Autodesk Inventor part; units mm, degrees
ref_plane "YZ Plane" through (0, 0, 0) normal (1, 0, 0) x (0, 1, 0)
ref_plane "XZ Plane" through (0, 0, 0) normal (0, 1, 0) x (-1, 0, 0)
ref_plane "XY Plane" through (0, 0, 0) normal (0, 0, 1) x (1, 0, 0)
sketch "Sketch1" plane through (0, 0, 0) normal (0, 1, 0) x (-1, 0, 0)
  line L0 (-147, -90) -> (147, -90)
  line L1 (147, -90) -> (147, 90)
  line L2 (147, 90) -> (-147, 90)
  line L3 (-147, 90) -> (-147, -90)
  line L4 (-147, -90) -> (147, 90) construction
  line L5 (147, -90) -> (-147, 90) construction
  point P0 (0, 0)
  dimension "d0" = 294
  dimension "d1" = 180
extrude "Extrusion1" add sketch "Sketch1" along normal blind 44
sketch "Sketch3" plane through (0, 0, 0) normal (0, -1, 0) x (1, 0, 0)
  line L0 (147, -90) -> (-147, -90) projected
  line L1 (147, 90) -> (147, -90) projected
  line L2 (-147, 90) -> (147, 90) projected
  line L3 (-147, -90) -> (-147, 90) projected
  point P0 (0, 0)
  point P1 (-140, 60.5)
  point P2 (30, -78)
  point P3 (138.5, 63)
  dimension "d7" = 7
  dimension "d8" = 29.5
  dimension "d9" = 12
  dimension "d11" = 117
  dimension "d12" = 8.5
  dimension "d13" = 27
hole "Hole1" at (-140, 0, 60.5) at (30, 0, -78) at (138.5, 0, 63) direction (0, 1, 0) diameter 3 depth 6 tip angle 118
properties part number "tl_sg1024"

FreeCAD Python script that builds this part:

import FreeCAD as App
import Part
import Sketcher
Q = App.Units.Quantity


def add_polygon(sketch, points):
    """Adds a closed chain of lines whose ends are joined by coincident constraints."""
    first, n = sketch.GeometryCount, len(points)
    for a, b in zip(points, points[1:] + points[:1]):
        sketch.addGeometry(Part.LineSegment(App.Vector(*a, 0), App.Vector(*b, 0)), False)
    for i in range(n):
        sketch.addConstraint(Sketcher.Constraint("Coincident", first + i, 2, first + (i + 1) % n, 1))

doc = App.newDocument("Part")
body = doc.addObject("PartDesign::Body", "Body")

sketch1 = doc.addObject("Sketcher::SketchObject", "Sketch")
body.addObject(sketch1)
sketch1.AttachmentSupport = (doc.XZ_Plane, [""])
sketch1.MapMode = "FlatFace"
add_polygon(sketch1, [(147, 90), (147, -90), (-147, -90), (-147, 90)])
sketch1.addConstraint([
    Sketcher.Constraint("Vertical", 0),
    Sketcher.Constraint("Horizontal", 1),
    Sketcher.Constraint("Vertical", 2),
    Sketcher.Constraint("Horizontal", 3),
    Sketcher.Constraint("Symmetric", 0, 2, 2, 2, -1, 1),
    Sketcher.Constraint("DistanceX", 1, 2, 1, 1, Q("294 mm")),
    Sketcher.Constraint("DistanceY", 0, 2, 0, 1, Q("180 mm")),
])
pad1 = doc.addObject("PartDesign::Pad", "Pad")
body.addObject(pad1)
pad1.Profile = sketch1
pad1.Length = 44
pad1.Reversed = True

sketch2 = doc.addObject("Sketcher::SketchObject", "Sketch001")
body.addObject(sketch2)
sketch2.AttachmentSupport = (doc.XZ_Plane, [""])
sketch2.MapMode = "FlatFace"
sketch2.addGeometry([
    Part.Circle(App.Vector(-140, 60.5, 0), App.Vector(0, 0, 1), 1.5),
    Part.Circle(App.Vector(30, -78, 0), App.Vector(0, 0, 1), 1.5),
    Part.Circle(App.Vector(138.5, 63, 0), App.Vector(0, 0, 1), 1.5),
], False)
sketch2.addConstraint([
    Sketcher.Constraint("Equal", 0, 1),
    Sketcher.Constraint("Equal", 1, 2),
    Sketcher.Constraint("Diameter", 0, Q("3 mm")),
    Sketcher.Constraint("DistanceX", 0, 3, -1, 1, Q("140 mm")),
    Sketcher.Constraint("DistanceX", -1, 1, 1, 3, Q("30 mm")),
    Sketcher.Constraint("DistanceY", 1, 3, -1, 1, Q("78 mm")),
    Sketcher.Constraint("DistanceY", -1, 1, 2, 3, Q("63 mm")),
    Sketcher.Constraint("DistanceY", -1, 1, 0, 3, Q("60.5 mm")),
    Sketcher.Constraint("DistanceX", -1, 1, 2, 3, Q("138.5 mm")),
])
doc.recompute()
hole = doc.addObject("PartDesign::Hole", "Hole")
body.addObject(hole)
hole.Profile = sketch2
hole.ThreadType = "None"
hole.Diameter = 3
hole.DepthType = "Dimension"
hole.Depth = 6
hole.DrillPoint = "Angled"
hole.DrillPointAngle = 118

doc.recompute()
